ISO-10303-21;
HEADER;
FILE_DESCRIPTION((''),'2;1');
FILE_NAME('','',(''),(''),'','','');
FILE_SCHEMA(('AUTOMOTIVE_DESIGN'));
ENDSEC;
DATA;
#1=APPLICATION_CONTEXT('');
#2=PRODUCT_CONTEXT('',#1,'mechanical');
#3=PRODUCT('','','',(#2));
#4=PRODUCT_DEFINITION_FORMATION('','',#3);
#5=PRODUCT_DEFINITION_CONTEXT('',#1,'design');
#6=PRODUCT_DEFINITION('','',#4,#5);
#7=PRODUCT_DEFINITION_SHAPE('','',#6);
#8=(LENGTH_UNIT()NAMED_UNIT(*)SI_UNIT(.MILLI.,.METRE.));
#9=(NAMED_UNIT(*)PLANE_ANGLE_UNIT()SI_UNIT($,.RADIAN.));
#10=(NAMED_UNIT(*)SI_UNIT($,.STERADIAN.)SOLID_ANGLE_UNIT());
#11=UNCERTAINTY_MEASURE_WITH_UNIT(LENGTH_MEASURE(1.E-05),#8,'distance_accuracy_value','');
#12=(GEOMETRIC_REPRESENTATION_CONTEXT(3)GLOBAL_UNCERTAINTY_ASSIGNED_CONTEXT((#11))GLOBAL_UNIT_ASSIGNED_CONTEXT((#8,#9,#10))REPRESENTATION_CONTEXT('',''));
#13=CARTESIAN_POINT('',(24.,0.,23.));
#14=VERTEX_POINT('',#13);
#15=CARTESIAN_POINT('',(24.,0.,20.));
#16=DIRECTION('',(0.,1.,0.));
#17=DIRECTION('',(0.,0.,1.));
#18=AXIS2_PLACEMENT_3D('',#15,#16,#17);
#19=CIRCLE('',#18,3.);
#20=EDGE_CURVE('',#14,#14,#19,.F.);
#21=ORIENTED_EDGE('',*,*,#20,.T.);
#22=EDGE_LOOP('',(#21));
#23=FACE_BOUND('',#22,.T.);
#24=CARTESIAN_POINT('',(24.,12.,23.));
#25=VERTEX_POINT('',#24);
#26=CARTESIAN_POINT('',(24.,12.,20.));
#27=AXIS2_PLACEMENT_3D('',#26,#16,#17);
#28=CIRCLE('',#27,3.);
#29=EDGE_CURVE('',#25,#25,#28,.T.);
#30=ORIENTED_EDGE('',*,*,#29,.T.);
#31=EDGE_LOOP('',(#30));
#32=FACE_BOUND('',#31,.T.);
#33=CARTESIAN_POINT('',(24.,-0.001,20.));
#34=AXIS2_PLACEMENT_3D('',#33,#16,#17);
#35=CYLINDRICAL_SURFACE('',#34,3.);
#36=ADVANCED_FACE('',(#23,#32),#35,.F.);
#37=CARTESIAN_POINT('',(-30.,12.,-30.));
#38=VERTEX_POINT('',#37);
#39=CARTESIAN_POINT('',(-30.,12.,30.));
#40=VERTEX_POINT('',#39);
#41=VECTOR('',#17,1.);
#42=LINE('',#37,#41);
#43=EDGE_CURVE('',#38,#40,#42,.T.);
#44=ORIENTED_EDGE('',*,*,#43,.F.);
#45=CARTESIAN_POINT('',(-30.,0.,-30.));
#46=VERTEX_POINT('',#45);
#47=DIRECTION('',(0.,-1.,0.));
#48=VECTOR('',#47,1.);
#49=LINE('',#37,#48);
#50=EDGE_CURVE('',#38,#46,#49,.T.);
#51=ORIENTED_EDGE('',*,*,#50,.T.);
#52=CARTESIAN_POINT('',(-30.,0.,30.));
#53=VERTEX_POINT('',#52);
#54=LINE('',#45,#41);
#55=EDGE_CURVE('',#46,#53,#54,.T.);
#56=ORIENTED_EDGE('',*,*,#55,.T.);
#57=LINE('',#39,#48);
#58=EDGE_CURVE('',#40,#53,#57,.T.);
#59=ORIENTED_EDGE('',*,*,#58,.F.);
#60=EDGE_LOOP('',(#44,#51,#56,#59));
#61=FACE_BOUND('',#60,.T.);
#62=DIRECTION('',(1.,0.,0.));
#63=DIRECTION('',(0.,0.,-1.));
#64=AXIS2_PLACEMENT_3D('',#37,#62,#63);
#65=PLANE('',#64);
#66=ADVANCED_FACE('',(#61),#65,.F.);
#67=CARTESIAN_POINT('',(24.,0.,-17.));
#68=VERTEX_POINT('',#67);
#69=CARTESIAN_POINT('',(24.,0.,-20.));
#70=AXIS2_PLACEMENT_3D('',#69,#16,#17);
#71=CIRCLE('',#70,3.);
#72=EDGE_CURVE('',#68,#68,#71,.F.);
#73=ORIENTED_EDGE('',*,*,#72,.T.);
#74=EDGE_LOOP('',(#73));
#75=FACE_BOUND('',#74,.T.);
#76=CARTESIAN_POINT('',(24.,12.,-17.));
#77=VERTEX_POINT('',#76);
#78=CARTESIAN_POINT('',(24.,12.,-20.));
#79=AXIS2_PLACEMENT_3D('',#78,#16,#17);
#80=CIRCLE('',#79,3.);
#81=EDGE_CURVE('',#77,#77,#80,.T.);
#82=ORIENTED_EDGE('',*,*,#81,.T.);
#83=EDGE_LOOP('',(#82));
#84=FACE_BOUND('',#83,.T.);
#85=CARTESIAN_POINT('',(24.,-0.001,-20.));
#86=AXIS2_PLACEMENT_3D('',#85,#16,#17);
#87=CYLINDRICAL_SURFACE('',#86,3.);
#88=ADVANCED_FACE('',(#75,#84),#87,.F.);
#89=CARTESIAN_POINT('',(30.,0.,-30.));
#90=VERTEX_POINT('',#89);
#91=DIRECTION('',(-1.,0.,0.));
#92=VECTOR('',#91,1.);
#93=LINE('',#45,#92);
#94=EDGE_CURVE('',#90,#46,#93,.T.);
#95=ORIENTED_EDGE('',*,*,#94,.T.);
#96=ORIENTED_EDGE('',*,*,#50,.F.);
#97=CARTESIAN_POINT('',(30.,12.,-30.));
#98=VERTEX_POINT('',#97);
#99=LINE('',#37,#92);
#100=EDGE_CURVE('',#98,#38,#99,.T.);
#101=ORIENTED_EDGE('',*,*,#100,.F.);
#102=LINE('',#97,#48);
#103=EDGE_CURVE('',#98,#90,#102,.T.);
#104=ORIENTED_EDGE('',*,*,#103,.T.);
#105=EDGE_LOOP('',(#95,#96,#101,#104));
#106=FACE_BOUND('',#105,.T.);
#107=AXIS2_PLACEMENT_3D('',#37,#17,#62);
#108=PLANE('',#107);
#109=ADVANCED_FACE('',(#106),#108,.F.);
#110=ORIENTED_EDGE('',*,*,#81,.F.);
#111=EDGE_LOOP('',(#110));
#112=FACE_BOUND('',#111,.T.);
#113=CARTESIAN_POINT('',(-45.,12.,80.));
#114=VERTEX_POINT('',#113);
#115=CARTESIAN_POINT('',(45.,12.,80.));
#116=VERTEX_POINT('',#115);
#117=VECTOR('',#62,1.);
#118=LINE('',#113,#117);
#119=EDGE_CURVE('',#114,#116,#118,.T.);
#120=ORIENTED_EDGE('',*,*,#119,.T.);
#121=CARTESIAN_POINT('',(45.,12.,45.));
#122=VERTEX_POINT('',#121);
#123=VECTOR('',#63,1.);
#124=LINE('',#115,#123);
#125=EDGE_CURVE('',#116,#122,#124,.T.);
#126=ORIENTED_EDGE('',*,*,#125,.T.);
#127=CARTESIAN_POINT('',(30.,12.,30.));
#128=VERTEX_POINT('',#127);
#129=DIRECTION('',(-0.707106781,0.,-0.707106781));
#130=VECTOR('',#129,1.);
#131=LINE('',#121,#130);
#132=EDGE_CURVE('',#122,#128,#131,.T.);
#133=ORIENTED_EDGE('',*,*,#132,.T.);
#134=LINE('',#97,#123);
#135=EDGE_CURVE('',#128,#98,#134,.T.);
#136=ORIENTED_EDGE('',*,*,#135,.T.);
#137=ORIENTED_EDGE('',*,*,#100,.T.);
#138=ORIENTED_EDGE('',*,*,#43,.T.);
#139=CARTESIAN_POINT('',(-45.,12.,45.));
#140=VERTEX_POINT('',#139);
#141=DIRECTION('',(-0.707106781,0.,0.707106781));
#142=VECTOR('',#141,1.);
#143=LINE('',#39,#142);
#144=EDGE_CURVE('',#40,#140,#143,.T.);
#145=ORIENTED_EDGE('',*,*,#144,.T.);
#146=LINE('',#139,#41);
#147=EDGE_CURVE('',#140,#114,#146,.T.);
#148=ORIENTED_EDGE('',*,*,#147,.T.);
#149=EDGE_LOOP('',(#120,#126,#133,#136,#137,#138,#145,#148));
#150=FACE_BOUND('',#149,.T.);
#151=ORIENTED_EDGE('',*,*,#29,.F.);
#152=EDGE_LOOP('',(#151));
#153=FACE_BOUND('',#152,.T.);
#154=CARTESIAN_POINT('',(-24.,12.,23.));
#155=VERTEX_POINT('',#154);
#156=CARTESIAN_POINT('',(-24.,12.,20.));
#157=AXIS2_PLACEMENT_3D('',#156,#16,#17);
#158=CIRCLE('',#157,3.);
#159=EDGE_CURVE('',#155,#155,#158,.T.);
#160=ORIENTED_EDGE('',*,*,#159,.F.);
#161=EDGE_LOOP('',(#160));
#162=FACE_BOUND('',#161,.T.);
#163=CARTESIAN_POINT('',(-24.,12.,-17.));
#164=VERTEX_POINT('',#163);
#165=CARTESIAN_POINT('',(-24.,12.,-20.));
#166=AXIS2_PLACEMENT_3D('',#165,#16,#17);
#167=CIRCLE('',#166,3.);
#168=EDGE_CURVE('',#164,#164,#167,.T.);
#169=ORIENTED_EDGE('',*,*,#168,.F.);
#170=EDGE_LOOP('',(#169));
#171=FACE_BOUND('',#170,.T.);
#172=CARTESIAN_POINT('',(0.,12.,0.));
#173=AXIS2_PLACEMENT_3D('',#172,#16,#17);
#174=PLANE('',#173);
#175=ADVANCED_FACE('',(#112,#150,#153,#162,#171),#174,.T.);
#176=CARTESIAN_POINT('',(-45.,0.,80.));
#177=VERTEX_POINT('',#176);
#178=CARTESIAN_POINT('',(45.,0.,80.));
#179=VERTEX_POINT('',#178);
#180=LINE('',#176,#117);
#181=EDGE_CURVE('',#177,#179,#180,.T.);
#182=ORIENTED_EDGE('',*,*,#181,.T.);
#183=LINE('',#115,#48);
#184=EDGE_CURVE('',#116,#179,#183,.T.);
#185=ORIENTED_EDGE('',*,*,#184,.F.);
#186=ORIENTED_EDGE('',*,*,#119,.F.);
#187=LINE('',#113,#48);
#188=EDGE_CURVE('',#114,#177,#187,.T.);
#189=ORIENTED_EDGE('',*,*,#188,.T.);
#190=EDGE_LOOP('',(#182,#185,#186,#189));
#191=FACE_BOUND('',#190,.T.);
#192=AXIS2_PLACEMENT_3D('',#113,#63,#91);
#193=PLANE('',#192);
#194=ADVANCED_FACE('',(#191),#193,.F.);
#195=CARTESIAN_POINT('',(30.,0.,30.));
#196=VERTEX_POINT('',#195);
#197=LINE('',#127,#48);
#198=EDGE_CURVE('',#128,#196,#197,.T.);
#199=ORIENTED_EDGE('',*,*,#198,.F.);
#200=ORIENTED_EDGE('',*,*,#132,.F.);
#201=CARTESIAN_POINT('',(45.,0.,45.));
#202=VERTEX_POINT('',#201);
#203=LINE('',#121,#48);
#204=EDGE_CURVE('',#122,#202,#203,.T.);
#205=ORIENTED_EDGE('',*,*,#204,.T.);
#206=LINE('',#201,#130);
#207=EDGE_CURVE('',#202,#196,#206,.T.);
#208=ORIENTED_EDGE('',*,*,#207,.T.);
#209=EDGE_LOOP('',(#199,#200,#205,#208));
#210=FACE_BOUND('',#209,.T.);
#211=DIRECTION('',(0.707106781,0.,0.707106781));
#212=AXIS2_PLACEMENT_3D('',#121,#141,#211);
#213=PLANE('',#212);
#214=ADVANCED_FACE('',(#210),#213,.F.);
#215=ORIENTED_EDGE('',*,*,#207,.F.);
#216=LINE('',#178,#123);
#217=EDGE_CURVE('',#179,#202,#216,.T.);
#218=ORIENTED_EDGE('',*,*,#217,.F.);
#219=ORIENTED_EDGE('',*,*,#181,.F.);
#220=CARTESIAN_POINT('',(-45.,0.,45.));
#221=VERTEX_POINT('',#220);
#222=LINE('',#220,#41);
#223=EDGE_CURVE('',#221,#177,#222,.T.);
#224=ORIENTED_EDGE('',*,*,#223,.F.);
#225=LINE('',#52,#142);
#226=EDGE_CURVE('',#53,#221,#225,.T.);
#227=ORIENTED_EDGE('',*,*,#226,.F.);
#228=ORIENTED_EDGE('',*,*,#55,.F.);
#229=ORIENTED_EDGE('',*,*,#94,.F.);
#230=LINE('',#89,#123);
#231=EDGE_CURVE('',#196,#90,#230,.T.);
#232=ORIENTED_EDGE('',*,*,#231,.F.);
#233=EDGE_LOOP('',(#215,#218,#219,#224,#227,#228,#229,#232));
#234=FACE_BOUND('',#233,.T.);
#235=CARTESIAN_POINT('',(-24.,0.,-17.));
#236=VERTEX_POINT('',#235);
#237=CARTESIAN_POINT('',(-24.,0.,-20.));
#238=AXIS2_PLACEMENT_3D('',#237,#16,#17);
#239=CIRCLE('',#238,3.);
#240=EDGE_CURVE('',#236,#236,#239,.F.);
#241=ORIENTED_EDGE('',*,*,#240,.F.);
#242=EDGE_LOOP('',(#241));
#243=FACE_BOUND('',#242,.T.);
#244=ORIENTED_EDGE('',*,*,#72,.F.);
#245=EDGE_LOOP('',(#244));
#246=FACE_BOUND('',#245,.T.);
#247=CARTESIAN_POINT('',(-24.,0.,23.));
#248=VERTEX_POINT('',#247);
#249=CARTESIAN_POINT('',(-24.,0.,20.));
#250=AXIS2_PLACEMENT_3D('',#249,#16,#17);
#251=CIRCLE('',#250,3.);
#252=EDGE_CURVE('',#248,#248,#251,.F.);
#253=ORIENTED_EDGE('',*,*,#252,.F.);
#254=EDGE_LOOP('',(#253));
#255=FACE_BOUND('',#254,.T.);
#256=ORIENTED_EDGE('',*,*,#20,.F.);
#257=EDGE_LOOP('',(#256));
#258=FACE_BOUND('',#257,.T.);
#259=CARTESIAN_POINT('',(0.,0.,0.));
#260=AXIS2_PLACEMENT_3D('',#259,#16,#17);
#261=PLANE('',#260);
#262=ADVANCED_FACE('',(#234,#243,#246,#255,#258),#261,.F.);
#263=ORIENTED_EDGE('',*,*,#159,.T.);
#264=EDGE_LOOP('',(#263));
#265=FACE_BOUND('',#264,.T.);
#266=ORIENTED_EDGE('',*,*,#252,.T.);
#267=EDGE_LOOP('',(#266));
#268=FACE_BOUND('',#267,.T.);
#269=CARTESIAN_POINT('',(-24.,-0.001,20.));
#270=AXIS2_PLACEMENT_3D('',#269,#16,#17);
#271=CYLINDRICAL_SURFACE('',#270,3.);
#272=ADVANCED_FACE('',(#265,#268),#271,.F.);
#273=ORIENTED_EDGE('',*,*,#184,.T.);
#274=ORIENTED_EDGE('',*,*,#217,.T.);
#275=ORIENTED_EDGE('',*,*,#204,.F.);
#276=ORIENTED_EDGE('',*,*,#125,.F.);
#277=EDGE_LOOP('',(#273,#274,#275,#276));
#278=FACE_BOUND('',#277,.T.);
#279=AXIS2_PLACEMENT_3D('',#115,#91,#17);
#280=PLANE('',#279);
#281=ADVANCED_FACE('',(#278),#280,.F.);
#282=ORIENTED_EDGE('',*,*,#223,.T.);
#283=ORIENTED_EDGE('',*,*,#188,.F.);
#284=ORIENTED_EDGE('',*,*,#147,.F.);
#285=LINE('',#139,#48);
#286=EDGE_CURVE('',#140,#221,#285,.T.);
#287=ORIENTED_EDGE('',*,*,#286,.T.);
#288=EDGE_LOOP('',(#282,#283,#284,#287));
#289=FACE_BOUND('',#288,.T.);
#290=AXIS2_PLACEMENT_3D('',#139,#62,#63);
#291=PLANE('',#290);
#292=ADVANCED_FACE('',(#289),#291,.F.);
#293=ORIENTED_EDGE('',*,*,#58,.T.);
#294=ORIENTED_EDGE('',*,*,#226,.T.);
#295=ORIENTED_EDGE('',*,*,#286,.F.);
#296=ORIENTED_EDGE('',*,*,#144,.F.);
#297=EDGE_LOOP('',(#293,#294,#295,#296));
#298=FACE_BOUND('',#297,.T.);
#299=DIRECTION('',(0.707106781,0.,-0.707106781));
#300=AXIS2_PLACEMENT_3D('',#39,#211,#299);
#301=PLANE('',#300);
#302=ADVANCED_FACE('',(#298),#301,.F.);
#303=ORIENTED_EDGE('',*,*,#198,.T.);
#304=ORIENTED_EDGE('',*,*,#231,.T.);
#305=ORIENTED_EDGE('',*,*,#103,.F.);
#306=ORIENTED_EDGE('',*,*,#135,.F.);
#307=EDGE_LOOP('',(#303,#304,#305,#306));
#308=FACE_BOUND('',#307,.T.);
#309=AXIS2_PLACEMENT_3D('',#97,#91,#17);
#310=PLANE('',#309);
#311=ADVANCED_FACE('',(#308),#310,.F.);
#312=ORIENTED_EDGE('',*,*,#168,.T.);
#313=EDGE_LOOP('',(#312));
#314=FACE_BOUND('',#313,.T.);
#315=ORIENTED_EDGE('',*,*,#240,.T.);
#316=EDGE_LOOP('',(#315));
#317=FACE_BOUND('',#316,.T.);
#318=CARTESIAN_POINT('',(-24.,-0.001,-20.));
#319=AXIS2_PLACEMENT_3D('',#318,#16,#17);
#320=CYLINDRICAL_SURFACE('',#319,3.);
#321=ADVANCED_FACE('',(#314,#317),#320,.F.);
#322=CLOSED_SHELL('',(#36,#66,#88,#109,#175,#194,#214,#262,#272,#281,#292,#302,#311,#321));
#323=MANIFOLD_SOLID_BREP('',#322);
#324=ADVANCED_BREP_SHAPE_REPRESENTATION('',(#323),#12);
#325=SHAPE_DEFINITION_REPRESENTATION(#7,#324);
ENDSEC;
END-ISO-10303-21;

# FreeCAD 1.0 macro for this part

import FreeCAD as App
import Part
import Sketcher
Q = App.Units.Quantity

doc = App.newDocument("Part")
params = doc.addObject("Spreadsheet::Sheet", "Params")
for row, (alias, value) in enumerate([
    ("sketch1_width", "90 mm"),
    ("sketch1_width2", "60 mm"),
    ("sketch1_height", "35 mm"),
    ("pad1_length", "12 mm"),
    ("sketch2_diameter", "6 mm"),
    ("sketch3_diameter", "6 mm"),
    ("sketch4_diameter", "6 mm"),
    ("sketch5_diameter", "6 mm"),
], start=1):
    params.set(f"A{row}", alias)
    params.set(f"B{row}", "=" + value)
    params.setAlias(f"B{row}", alias)

body = doc.addObject("PartDesign::Body", "Body")

sketch1 = body.newObject("Sketcher::SketchObject", "Sketch")
sketch1.AttachmentSupport = (doc.getObject("XZ_Plane"), [""])
sketch1.MapMode = "FlatFace"
sketch1.addGeometry(Part.LineSegment(App.Vector(-30, 30, 0), App.Vector(-45, 45, 0)), False)
sketch1.addGeometry(Part.LineSegment(App.Vector(-45, 45, 0), App.Vector(-45, 80, 0)), False)
sketch1.addGeometry(Part.LineSegment(App.Vector(-45, 80, 0), App.Vector(45, 80, 0)), False)
sketch1.addGeometry(Part.LineSegment(App.Vector(45, 80, 0), App.Vector(45, 45, 0)), False)
sketch1.addGeometry(Part.LineSegment(App.Vector(45, 45, 0), App.Vector(30, 30, 0)), False)
sketch1.addGeometry(Part.LineSegment(App.Vector(30, 30, 0), App.Vector(30, -30, 0)), False)
sketch1.addGeometry(Part.LineSegment(App.Vector(30, -30, 0), App.Vector(-30, -30, 0)), False)
sketch1.addGeometry(Part.LineSegment(App.Vector(-30, -30, 0), App.Vector(-30, 30, 0)), False)
sketch1.addConstraint(Sketcher.Constraint("Coincident", 0, 2, 1, 1))
sketch1.addConstraint(Sketcher.Constraint("Coincident", 1, 2, 2, 1))
sketch1.addConstraint(Sketcher.Constraint("Coincident", 2, 2, 3, 1))
sketch1.addConstraint(Sketcher.Constraint("Coincident", 3, 2, 4, 1))
sketch1.addConstraint(Sketcher.Constraint("Coincident", 4, 2, 5, 1))
sketch1.addConstraint(Sketcher.Constraint("Coincident", 5, 2, 6, 1))
sketch1.addConstraint(Sketcher.Constraint("Coincident", 6, 2, 7, 1))
sketch1.addConstraint(Sketcher.Constraint("Coincident", 7, 2, 0, 1))
sketch1.addConstraint(Sketcher.Constraint("Vertical", 1))
sketch1.addConstraint(Sketcher.Constraint("Horizontal", 2))
sketch1.addConstraint(Sketcher.Constraint("Vertical", 3))
sketch1.addConstraint(Sketcher.Constraint("Vertical", 5))
sketch1.addConstraint(Sketcher.Constraint("Horizontal", 6))
sketch1.addConstraint(Sketcher.Constraint("Vertical", 7))
sketch1.addConstraint(Sketcher.Constraint("Symmetric", 4, 2, 6, 2, -1, 1))
sketch1.addConstraint(Sketcher.Constraint("Symmetric", 0, 2, 3, 2, -2))
sketch1.addConstraint(Sketcher.Constraint("Perpendicular", 0, 4))
sketch1.addConstraint(Sketcher.Constraint("Horizontal", 4, 2, 7, 2))
sketch1.addConstraint(Sketcher.Constraint("Equal", 6, 5))
sketch1.addConstraint(Sketcher.Constraint("DistanceX", 2, 1, 2, 2, Q("90 mm")))
sketch1.addConstraint(Sketcher.Constraint("DistanceX", 6, 2, 6, 1, Q("60 mm")))
sketch1.addConstraint(Sketcher.Constraint("DistanceY", 1, 1, 1, 2, Q("35 mm")))
sketch1.setExpression("Constraints[19]", "Params.sketch1_width")
sketch1.setExpression("Constraints[20]", "Params.sketch1_width2")
sketch1.setExpression("Constraints[21]", "Params.sketch1_height")
pad1 = body.newObject("PartDesign::Pad", "Pad")
pad1.Profile = sketch1
pad1.setExpression("Length", "Params.pad1_length")
pad1.Reversed = True

sketch2 = body.newObject("Sketcher::SketchObject", "Sketch001")
sketch2.AttachmentSupport = (doc.getObject("XZ_Plane"), [""])
sketch2.MapMode = "FlatFace"
sketch2.AttachmentOffset = App.Placement(App.Vector(0, 0, -12), App.Rotation())
sketch2.addGeometry(Part.Circle(App.Vector(-24, -20, 0), App.Vector(0, 0, 1), 3), False)
sketch2.addConstraint(Sketcher.Constraint("Diameter", 0, Q("6 mm")))
sketch2.addConstraint(Sketcher.Constraint("DistanceX", 0, 3, -1, 1, Q("24 mm")))
sketch2.addConstraint(Sketcher.Constraint("DistanceY", 0, 3, -1, 1, Q("20 mm")))
sketch2.setExpression("Constraints[0]", "Params.sketch2_diameter")
pocket1 = body.newObject("PartDesign::Pocket", "Pocket")
pocket1.Profile = sketch2
pocket1.Type = "UpToFirst"
pocket1.Reversed = True

sketch3 = body.newObject("Sketcher::SketchObject", "Sketch002")
sketch3.AttachmentSupport = (doc.getObject("XZ_Plane"), [""])
sketch3.MapMode = "FlatFace"
sketch3.AttachmentOffset = App.Placement(App.Vector(0, 0, -12), App.Rotation())
sketch3.addGeometry(Part.Circle(App.Vector(-24, 20, 0), App.Vector(0, 0, 1), 3), False)
sketch3.addConstraint(Sketcher.Constraint("Diameter", 0, Q("6 mm")))
sketch3.addConstraint(Sketcher.Constraint("DistanceX", 0, 3, -1, 1, Q("24 mm")))
sketch3.addConstraint(Sketcher.Constraint("DistanceY", -1, 1, 0, 3, Q("20 mm")))
sketch3.setExpression("Constraints[0]", "Params.sketch3_diameter")
pocket2 = body.newObject("PartDesign::Pocket", "Pocket001")
pocket2.Profile = sketch3
pocket2.Type = "UpToFirst"
pocket2.Reversed = True

sketch4 = body.newObject("Sketcher::SketchObject", "Sketch003")
sketch4.AttachmentSupport = (doc.getObject("XZ_Plane"), [""])
sketch4.MapMode = "FlatFace"
sketch4.AttachmentOffset = App.Placement(App.Vector(0, 0, -12), App.Rotation())
sketch4.addGeometry(Part.Circle(App.Vector(24, -20, 0), App.Vector(0, 0, 1), 3), False)
sketch4.addConstraint(Sketcher.Constraint("Diameter", 0, Q("6 mm")))
sketch4.addConstraint(Sketcher.Constraint("DistanceX", -1, 1, 0, 3, Q("24 mm")))
sketch4.addConstraint(Sketcher.Constraint("DistanceY", 0, 3, -1, 1, Q("20 mm")))
sketch4.setExpression("Constraints[0]", "Params.sketch4_diameter")
pocket3 = body.newObject("PartDesign::Pocket", "Pocket002")
pocket3.Profile = sketch4
pocket3.Type = "UpToFirst"
pocket3.Reversed = True

sketch5 = body.newObject("Sketcher::SketchObject", "Sketch004")
sketch5.AttachmentSupport = (doc.getObject("XZ_Plane"), [""])
sketch5.MapMode = "FlatFace"
sketch5.AttachmentOffset = App.Placement(App.Vector(0, 0, -12), App.Rotation())
sketch5.addGeometry(Part.Circle(App.Vector(24, 20, 0), App.Vector(0, 0, 1), 3), False)
sketch5.addConstraint(Sketcher.Constraint("Diameter", 0, Q("6 mm")))
sketch5.addConstraint(Sketcher.Constraint("DistanceX", -1, 1, 0, 3, Q("24 mm")))
sketch5.addConstraint(Sketcher.Constraint("DistanceY", -1, 1, 0, 3, Q("20 mm")))
sketch5.setExpression("Constraints[0]", "Params.sketch5_diameter")
pocket4 = body.newObject("PartDesign::Pocket", "Pocket003")
pocket4.Profile = sketch5
pocket4.Type = "UpToFirst"
pocket4.Reversed = True

doc.recompute()
